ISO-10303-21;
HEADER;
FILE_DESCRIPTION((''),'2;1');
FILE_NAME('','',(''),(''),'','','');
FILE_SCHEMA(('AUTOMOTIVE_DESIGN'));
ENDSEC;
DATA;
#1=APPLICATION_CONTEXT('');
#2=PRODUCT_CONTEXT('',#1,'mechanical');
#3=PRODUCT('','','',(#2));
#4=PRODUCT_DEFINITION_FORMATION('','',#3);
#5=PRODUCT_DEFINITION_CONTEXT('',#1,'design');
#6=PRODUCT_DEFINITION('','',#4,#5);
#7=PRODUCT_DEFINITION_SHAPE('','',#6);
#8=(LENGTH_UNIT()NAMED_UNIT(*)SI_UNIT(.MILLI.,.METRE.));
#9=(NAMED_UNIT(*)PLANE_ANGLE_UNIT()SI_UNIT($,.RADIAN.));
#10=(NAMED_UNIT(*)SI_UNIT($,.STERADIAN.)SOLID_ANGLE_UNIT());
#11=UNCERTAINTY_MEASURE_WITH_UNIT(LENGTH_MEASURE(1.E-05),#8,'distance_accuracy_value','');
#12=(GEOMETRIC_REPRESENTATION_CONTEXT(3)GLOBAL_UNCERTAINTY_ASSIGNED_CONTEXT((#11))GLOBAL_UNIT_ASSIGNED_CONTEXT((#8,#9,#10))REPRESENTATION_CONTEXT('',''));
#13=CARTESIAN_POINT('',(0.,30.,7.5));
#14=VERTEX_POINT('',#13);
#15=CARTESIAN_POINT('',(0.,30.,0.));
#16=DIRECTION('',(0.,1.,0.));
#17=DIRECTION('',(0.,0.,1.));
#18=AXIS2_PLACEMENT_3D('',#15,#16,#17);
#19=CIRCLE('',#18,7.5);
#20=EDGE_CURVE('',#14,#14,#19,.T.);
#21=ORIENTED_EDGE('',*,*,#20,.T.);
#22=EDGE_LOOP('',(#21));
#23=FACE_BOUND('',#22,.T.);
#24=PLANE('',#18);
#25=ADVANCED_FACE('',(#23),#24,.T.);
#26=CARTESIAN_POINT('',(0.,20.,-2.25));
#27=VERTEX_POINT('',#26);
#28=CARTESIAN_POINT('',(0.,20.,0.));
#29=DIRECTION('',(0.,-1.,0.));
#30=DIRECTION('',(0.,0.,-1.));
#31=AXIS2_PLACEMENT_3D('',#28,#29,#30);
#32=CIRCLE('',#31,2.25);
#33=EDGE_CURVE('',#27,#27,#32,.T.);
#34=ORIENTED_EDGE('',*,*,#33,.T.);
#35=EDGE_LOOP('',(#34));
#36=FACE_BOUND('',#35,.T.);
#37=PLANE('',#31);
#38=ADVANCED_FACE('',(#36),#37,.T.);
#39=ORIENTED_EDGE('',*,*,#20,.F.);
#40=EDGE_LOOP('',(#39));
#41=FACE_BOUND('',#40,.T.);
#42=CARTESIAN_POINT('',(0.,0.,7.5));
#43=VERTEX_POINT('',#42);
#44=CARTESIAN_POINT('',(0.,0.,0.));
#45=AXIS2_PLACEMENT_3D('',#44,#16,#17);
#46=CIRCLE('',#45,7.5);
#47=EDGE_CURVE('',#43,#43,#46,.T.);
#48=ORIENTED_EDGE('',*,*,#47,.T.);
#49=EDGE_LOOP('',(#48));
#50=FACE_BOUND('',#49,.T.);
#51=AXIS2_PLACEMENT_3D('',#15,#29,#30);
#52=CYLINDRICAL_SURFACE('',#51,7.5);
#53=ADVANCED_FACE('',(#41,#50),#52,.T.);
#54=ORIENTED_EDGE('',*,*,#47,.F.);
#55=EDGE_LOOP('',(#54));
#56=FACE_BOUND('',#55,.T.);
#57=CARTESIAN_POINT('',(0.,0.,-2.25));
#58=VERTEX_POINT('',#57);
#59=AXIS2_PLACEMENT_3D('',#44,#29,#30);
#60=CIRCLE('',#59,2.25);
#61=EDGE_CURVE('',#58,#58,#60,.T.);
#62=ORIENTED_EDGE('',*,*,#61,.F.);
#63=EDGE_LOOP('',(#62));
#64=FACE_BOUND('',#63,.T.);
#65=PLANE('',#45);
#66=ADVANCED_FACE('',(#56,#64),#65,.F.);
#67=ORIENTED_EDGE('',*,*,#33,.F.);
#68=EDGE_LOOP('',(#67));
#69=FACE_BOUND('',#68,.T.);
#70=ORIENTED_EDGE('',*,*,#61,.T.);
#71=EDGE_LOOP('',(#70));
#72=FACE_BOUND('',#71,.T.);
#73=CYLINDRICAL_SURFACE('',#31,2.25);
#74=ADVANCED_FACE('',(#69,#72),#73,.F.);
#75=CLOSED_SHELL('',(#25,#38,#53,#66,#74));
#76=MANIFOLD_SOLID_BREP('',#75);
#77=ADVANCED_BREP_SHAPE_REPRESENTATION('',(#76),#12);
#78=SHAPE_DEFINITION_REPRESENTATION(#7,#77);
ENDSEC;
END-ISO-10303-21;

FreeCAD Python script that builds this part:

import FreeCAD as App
import Part
import Sketcher

V = App.Vector
Q = App.Units.Quantity

doc = App.newDocument("Part")
body = doc.addObject("PartDesign::Body", "Body")

# Sketch on XZ plane
sketch1 = doc.addObject("Sketcher::SketchObject", "Sketch")
body.addObject(sketch1)
sketch1.AttachmentSupport = (doc.XZ_Plane, [""])
sketch1.MapMode = "FlatFace"
sketch1.addGeometry(Part.Circle(V(0, 0, 0), V(0, 0, 1), 8), False)
sketch1.addConstraint(Sketcher.Constraint("Coincident", 0, 3, -1, 1))
sketch1.addConstraint(Sketcher.Constraint("Diameter", 0, Q("15 mm")))
pad1 = doc.addObject("PartDesign::Pad", "Pad")
body.addObject(pad1)
pad1.Profile = sketch1
pad1.Length = 30
pad1.Reversed = True

# Sketch on XZ plane
sketch2 = doc.addObject("Sketcher::SketchObject", "Sketch001")
body.addObject(sketch2)
sketch2.AttachmentSupport = (doc.XZ_Plane, [""])
sketch2.MapMode = "FlatFace"
sketch2.addGeometry(Part.Circle(V(0, 0, 0), V(0, 0, 1), 2.2), False)
sketch2.addConstraint(Sketcher.Constraint("Coincident", 0, 3, -1, 1))
sketch2.addConstraint(Sketcher.Constraint("Diameter", 0, Q("4.5 mm")))
pocket1 = doc.addObject("PartDesign::Pocket", "Pocket")
body.addObject(pocket1)
pocket1.Profile = sketch2
pocket1.Length = 20

doc.recompute()
